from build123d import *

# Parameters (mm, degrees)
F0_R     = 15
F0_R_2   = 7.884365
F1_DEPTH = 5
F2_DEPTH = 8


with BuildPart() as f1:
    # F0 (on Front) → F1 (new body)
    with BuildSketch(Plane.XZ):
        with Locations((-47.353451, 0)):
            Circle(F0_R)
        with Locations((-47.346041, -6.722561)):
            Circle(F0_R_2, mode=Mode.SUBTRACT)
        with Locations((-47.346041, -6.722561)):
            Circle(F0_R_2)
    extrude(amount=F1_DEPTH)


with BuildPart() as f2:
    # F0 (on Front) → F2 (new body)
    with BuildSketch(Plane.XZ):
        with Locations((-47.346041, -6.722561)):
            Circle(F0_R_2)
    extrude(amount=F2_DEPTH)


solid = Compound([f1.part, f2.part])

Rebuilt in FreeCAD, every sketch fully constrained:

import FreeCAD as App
import Part
import Sketcher
from FreeCAD import Vector

doc = App.newDocument("Part")
params = doc.addObject("Spreadsheet::Sheet", "Params")
for row, (alias, value) in enumerate([
    ("sketch1_diameter", "30 mm"),
    ("pad1_length", "5 mm"),
    ("pad2_length", "8 mm"),
], start=1):
    params.set(f"A{row}", alias)
    params.set(f"B{row}", "=" + value)
    params.setAlias(f"B{row}", alias)

body = doc.addObject("PartDesign::Body", "Body")

sketch1 = body.newObject("Sketcher::SketchObject", "Sketch")
sketch1.AttachmentSupport = (doc.getObject("XZ_Plane"), [""])
sketch1.MapMode = "FlatFace"
sketch1.addGeometry(Part.Circle(Vector(-47, 0, 0), Vector(0, 0, 1), 15), False)
sketch1.addConstraint([
    Sketcher.Constraint("PointOnObject", 0, 3, -1),
    Sketcher.Constraint("Diameter", 0, 30.0),
    Sketcher.Constraint("DistanceX", 0, 3, -1, 1, 47.353451),
])
sketch1.setExpression("Constraints[1]", "Params.sketch1_diameter")
pad1 = body.newObject("PartDesign::Pad", "Pad")
pad1.Profile = sketch1
pad1.setExpression("Length", "Params.pad1_length")
body2 = doc.addObject("PartDesign::Body", "Body001")

sketch2 = body2.newObject("Sketcher::SketchObject", "Sketch001")
sketch2.AttachmentSupport = (doc.getObject("XZ_Plane001"), [""])
sketch2.MapMode = "FlatFace"
sketch2.addGeometry(Part.Circle(Vector(-47, -7, 0), Vector(0, 0, 1), 8), False)
sketch2.addConstraint([
    Sketcher.Constraint("Diameter", 0, 15.76873),
    Sketcher.Constraint("DistanceX", 0, 3, -1, 1, 47.346041),
    Sketcher.Constraint("DistanceY", 0, 3, -1, 1, 6.722561),
])
pad2 = body2.newObject("PartDesign::Pad", "Pad001")
pad2.Profile = sketch2
pad2.setExpression("Length", "Params.pad2_length")

doc.recompute()
